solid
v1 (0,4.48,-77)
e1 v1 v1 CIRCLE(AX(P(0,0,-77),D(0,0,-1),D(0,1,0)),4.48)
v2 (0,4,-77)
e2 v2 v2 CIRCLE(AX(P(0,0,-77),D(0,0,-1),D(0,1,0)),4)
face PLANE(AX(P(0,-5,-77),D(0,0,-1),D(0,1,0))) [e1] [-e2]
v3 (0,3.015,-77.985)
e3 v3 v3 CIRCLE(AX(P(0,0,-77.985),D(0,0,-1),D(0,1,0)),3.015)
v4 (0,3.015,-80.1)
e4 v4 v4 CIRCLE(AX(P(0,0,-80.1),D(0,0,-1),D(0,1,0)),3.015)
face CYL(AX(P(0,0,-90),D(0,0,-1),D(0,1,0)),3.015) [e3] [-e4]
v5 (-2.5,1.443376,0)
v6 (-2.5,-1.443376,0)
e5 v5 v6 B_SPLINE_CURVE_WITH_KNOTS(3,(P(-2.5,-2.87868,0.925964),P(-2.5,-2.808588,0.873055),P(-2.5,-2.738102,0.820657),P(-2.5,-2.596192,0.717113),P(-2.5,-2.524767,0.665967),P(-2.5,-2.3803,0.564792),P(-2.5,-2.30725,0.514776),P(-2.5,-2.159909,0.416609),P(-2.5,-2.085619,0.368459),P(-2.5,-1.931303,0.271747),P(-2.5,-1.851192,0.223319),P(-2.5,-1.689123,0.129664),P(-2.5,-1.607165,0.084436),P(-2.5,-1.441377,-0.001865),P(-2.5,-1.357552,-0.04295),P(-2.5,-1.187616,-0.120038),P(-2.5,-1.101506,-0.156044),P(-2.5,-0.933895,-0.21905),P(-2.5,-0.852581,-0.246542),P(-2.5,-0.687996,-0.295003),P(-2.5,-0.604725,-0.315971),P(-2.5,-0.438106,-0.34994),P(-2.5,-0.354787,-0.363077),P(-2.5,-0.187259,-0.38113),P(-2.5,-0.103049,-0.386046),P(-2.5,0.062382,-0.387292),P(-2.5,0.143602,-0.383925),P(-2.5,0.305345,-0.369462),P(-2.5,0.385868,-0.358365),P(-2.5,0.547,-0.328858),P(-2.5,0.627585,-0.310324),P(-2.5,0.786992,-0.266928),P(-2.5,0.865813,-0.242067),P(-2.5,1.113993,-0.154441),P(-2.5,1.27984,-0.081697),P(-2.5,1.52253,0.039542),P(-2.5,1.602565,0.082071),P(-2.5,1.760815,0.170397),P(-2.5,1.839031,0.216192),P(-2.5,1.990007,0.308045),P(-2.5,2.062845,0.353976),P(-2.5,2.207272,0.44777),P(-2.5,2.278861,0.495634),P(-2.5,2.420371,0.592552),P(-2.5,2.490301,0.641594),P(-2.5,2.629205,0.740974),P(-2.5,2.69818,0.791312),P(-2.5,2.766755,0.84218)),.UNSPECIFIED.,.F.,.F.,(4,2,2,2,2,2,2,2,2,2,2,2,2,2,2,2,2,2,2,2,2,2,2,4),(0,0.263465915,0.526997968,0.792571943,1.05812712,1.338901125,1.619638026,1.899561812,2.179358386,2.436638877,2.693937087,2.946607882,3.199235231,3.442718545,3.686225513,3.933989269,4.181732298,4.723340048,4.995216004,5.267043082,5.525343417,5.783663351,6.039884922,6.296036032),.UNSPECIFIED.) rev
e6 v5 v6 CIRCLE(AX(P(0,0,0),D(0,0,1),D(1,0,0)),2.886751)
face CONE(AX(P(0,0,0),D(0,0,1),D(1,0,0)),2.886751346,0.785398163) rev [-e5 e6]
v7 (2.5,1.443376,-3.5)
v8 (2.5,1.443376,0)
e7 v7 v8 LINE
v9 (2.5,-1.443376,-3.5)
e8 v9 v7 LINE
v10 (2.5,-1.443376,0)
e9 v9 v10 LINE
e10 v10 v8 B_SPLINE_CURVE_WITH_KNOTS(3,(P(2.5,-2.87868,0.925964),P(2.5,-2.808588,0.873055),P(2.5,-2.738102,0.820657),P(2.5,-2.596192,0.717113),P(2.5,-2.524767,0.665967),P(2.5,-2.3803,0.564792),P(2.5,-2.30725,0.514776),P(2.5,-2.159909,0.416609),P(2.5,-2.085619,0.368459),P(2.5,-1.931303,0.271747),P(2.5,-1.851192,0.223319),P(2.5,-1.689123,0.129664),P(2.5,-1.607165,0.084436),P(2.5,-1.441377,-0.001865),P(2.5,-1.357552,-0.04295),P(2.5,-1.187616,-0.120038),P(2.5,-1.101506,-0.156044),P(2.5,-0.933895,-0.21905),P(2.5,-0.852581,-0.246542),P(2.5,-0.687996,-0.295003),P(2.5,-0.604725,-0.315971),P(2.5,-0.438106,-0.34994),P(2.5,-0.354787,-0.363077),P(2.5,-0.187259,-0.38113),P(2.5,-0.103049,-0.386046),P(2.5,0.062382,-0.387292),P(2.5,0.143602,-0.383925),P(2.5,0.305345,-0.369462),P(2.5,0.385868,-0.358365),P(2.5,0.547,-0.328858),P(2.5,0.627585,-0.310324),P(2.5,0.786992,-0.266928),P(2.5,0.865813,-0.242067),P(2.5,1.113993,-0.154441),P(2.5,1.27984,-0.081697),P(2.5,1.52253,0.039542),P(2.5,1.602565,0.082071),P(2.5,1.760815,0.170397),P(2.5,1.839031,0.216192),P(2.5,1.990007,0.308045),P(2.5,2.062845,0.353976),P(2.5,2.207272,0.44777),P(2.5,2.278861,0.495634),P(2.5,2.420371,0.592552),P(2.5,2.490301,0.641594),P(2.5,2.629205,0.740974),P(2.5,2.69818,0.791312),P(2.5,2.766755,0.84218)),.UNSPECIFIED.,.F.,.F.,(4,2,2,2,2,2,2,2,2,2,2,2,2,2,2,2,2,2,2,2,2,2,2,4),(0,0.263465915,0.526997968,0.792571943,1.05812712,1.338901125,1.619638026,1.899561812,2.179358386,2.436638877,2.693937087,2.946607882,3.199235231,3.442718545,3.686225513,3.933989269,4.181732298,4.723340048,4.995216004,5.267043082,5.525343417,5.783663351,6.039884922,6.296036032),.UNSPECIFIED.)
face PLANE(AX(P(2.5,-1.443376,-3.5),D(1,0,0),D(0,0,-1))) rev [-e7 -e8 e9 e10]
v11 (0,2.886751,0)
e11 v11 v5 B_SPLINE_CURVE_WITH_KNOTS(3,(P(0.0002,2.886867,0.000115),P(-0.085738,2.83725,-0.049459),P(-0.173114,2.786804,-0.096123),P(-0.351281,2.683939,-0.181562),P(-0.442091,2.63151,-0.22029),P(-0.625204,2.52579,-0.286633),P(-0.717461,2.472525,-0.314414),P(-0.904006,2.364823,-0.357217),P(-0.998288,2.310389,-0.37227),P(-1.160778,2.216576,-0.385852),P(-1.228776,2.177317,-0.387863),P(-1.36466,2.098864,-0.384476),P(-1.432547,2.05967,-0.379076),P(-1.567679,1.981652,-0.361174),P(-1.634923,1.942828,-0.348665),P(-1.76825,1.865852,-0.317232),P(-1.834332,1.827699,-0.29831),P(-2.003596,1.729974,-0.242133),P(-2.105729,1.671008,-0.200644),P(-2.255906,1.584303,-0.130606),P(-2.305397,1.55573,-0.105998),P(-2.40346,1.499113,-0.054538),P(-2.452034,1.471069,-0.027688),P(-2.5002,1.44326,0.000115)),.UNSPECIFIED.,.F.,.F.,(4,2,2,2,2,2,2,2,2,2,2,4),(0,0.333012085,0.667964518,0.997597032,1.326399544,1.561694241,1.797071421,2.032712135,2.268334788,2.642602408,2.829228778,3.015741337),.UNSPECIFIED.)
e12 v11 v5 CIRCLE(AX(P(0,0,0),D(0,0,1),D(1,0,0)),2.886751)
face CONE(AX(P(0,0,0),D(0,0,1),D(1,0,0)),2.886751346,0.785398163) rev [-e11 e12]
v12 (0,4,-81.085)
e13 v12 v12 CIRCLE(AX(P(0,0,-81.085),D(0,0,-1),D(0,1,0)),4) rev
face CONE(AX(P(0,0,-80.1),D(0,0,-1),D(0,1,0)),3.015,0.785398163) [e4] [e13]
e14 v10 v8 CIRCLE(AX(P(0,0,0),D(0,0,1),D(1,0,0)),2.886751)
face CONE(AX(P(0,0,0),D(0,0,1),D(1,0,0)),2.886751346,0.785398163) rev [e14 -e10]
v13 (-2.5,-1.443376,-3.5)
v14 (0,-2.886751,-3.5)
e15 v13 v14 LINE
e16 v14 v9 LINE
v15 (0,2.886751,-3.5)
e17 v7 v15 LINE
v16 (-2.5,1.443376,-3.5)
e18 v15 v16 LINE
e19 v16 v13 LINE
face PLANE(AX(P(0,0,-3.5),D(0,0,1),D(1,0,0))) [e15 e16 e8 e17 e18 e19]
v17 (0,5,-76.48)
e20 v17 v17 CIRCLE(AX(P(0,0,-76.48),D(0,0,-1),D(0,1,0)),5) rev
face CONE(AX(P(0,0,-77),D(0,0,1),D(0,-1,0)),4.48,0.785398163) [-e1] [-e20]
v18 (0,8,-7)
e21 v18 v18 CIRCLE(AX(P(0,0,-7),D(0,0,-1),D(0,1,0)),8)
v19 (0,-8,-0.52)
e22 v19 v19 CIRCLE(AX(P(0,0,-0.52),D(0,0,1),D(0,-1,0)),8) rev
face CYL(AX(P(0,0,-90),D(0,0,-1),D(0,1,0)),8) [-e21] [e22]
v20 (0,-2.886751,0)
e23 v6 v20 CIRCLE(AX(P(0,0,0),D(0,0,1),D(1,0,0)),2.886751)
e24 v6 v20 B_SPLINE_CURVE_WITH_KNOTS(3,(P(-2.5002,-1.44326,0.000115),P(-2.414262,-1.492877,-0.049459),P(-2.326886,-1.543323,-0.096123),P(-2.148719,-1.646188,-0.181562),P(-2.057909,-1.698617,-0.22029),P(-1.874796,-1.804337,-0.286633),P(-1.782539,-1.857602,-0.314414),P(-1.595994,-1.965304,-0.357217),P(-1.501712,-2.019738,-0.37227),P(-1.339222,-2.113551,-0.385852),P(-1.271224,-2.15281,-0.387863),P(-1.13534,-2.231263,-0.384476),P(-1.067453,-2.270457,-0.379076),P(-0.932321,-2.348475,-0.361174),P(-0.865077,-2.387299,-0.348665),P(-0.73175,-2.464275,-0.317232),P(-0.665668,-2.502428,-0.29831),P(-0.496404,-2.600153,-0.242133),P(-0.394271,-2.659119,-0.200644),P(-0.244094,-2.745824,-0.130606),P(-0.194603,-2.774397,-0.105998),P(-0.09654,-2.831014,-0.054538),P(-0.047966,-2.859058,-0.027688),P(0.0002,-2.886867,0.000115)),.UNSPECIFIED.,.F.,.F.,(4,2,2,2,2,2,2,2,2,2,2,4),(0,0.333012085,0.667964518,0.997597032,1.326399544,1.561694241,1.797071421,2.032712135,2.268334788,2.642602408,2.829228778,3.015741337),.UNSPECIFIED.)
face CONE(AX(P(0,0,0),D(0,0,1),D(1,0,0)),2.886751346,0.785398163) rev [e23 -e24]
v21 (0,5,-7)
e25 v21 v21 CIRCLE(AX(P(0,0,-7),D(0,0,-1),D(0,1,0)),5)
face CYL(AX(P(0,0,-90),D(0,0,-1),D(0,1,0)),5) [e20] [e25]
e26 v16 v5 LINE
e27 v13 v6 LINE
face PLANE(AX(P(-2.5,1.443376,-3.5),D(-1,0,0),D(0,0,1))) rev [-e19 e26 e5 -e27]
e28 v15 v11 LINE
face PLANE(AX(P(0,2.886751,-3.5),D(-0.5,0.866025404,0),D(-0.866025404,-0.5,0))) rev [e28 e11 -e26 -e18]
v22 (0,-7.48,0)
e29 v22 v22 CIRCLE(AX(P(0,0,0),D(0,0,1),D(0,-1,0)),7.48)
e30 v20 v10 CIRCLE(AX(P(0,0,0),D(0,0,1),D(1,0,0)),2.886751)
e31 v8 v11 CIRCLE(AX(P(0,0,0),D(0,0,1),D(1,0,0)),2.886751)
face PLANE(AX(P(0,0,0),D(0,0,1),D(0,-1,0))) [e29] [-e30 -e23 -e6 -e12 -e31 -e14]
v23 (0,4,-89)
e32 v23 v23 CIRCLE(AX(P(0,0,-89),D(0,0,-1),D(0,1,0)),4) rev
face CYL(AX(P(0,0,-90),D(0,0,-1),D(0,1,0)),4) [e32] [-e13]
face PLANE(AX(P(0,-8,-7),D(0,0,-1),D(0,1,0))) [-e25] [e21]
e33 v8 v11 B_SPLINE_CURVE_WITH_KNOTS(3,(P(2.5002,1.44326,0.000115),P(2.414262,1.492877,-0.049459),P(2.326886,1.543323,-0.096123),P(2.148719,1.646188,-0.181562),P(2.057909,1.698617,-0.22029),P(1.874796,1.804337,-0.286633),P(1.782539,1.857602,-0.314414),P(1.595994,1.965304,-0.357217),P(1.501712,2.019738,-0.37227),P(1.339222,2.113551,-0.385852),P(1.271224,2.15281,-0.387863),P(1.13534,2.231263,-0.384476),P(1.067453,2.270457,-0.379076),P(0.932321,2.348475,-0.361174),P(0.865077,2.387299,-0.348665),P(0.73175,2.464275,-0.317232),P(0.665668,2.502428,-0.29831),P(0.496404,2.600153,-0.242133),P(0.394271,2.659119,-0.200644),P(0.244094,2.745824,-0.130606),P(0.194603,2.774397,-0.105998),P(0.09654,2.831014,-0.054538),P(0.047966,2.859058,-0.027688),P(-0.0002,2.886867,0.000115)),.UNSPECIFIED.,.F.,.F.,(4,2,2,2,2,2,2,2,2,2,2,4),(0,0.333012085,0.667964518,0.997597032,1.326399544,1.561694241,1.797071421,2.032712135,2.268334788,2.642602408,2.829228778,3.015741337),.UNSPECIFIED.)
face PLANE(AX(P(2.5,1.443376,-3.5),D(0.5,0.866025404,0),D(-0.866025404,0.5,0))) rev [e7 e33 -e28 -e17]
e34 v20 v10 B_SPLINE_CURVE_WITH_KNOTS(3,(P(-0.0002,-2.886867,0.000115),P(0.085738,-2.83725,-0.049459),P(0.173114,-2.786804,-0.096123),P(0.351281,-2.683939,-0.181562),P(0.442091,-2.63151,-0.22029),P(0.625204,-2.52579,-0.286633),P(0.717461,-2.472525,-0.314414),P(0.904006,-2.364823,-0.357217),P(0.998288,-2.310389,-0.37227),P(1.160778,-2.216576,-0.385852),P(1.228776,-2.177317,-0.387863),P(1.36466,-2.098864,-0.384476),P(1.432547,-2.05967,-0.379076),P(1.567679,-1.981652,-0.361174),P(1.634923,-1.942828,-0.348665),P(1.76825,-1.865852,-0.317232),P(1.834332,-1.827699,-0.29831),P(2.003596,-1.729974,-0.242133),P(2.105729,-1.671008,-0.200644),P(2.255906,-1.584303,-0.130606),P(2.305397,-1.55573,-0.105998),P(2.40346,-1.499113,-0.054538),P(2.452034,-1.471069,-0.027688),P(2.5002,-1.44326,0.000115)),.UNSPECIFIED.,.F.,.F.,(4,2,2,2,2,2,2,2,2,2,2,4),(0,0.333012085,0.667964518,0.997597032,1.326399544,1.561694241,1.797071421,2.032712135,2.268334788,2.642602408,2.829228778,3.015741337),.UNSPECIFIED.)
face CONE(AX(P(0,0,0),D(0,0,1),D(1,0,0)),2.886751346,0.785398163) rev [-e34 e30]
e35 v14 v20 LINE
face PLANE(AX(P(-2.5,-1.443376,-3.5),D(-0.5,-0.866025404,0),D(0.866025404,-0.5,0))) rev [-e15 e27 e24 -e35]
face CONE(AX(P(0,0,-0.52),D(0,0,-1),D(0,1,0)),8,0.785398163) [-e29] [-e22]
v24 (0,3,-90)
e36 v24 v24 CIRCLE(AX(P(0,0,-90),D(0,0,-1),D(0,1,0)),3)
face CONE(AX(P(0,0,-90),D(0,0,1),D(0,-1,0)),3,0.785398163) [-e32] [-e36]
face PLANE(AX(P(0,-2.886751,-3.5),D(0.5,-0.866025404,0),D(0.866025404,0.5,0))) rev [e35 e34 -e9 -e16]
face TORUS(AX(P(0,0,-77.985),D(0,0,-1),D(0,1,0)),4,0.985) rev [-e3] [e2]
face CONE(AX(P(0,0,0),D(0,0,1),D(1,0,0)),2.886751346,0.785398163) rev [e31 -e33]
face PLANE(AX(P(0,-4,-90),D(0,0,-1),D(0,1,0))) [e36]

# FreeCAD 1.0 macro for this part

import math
import FreeCAD as App
import Part
import Sketcher
from FreeCAD import Vector
Q = App.Units.Quantity


def edges_at(feature, points):
    """Names of the edges that pass closest to the given points."""
    edges = feature.Shape.Edges
    near = lambda p: min(range(len(edges)), key=lambda i: edges[i].distToShape(Part.Vertex(*p))[0])
    return sorted({f"Edge{near(p) + 1}" for p in points})


def add_polygon(sketch, points):
    """Adds a closed chain of lines whose ends are joined by coincident constraints."""
    first, n = sketch.GeometryCount, len(points)
    for a, b in zip(points, points[1:] + points[:1]):
        sketch.addGeometry(Part.LineSegment(App.Vector(*a, 0), App.Vector(*b, 0)), False)
    for i in range(n):
        sketch.addConstraint(Sketcher.Constraint("Coincident", first + i, 2, first + (i + 1) % n, 1))

doc = App.newDocument("Part")
params = doc.addObject("Spreadsheet::Sheet", "Params")
for row, (alias, value) in enumerate([
    ("sketch1_width", "8 mm"),
    ("sketch1_width2", "4 mm"),
    ("sketch1_width3", "1 mm"),
    ("sketch1_height", "7 mm"),
    ("sketch1_height2", "90 mm"),
    ("revolution_angle", "360 deg"),
    ("sketch2_width", "1 mm"),
    ("groove_angle", "360 deg"),
    ("chamfer_size", "1 mm"),
    ("chamfer2_size", "0.52 mm"),
    ("pocket1_length", "3.5 mm"),
    ("groove2_angle", "360 deg"),
], start=1):
    params.set(f"A{row}", alias)
    params.set(f"B{row}", "=" + value)
    params.setAlias(f"B{row}", alias)

body = doc.addObject("PartDesign::Body", "Body")

# Sketch on YZ plane
sketch1 = body.newObject("Sketcher::SketchObject", "Sketch")
sketch1.AttachmentSupport = (doc.getObject("YZ_Plane"), [""])
sketch1.MapMode = "FlatFace"
add_polygon(sketch1, [(8, -7), (8, 0), (0, 0), (0, -90), (4, -90), (4, -77), (5, -77), (5, -7)])  # lines 0-7
sketch1.addConstraint(Sketcher.Constraint("Vertical", 0))
sketch1.addConstraint(Sketcher.Constraint("Horizontal", 1))
sketch1.addConstraint(Sketcher.Constraint("Vertical", 2))
sketch1.addConstraint(Sketcher.Constraint("Horizontal", 3))
sketch1.addConstraint(Sketcher.Constraint("Vertical", 4))
sketch1.addConstraint(Sketcher.Constraint("Horizontal", 5))
sketch1.addConstraint(Sketcher.Constraint("Vertical", 6))
sketch1.addConstraint(Sketcher.Constraint("Horizontal", 7))
sketch1.addConstraint(Sketcher.Constraint("Coincident", 1, 2, -1, 1))
sketch1.addConstraint(Sketcher.Constraint("DistanceX", 1, 2, 1, 1, 8.0))
sketch1.addConstraint(Sketcher.Constraint("DistanceX", 3, 1, 3, 2, 4.0))
sketch1.addConstraint(Sketcher.Constraint("DistanceX", 5, 1, 5, 2, 1.0))
sketch1.addConstraint(Sketcher.Constraint("DistanceY", 0, 1, 0, 2, 7.0))
sketch1.addConstraint(Sketcher.Constraint("DistanceY", 2, 2, 2, 1, 90.0))
sketch1.addConstraint(Sketcher.Constraint("DistanceY", 4, 1, 4, 2, 13.0))
sketch1.setExpression("Constraints[17]", "Params.sketch1_width")
sketch1.setExpression("Constraints[18]", "Params.sketch1_width2")
sketch1.setExpression("Constraints[19]", "Params.sketch1_width3")
sketch1.setExpression("Constraints[20]", "Params.sketch1_height")
sketch1.setExpression("Constraints[21]", "Params.sketch1_height2")
revolution = body.newObject("PartDesign::Revolution", "Revolution")
revolution.Profile = sketch1
revolution.ReferenceAxis = (sketch1, ["V_Axis"])
revolution.setExpression("Angle", "Params.revolution_angle")

# Sketch on YZ plane
sketch2 = body.newObject("Sketcher::SketchObject", "Sketch001")
sketch2.AttachmentSupport = (doc.getObject("YZ_Plane"), [""])
sketch2.MapMode = "FlatFace"
sketch2.addGeometry(Part.LineSegment(Vector(5, -82.085, 0), Vector(5, -77, 0)), False)
sketch2.addGeometry(Part.LineSegment(Vector(5, -77, 0), Vector(4, -77, 0)), False)
sketch2.addGeometry(Part.ArcOfCircle(Part.Circle(Vector(4, -77.985, 0), Vector(0, 0, 1), 0.985), math.radians(90), math.radians(180)), False)
sketch2.addGeometry(Part.LineSegment(Vector(3.015, -77.985, 0), Vector(3.015, -80.1, 0)), False)
sketch2.addGeometry(Part.LineSegment(Vector(3.015, -80.1, 0), Vector(5, -82.085, 0)), False)
sketch2.addConstraint(Sketcher.Constraint("Coincident", 0, 2, 1, 1))
sketch2.addConstraint(Sketcher.Constraint("Tangent", 1, 2, 2, 1))
sketch2.addConstraint(Sketcher.Constraint("Tangent", 2, 2, 3, 1))
sketch2.addConstraint(Sketcher.Constraint("Coincident", 3, 2, 4, 1))
sketch2.addConstraint(Sketcher.Constraint("Coincident", 4, 2, 0, 1))
sketch2.addConstraint(Sketcher.Constraint("Vertical", 0))
sketch2.addConstraint(Sketcher.Constraint("Horizontal", 1))
sketch2.addConstraint(Sketcher.Constraint("Vertical", 3))
sketch2.addConstraint(Sketcher.Constraint("DistanceX", 1, 2, 1, 1, 1.0))
sketch2.addConstraint(Sketcher.Constraint("Angle", 4, Q("-45 deg")))
sketch2.addConstraint(Sketcher.Constraint("DistanceX", -1, 1, 2, 3, 4.0))
sketch2.addConstraint(Sketcher.Constraint("DistanceY", 0, 2, -1, 1, 77.0))
sketch2.addConstraint(Sketcher.Constraint("Radius", 2, 0.985))
sketch2.addConstraint(Sketcher.Constraint("DistanceY", 3, 2, -1, 1, 80.1))
sketch2.setExpression("Constraints[8]", "Params.sketch2_width")
groove = body.newObject("PartDesign::Groove", "Groove")
groove.Profile = sketch2
groove.ReferenceAxis = (sketch2, ["V_Axis"])
groove.setExpression("Angle", "Params.groove_angle")
doc.recompute()

chamfer = body.newObject("PartDesign::Chamfer", "Chamfer")
chamfer.Base = (groove, edges_at(groove, [(0, -4, -90)]))
chamfer.setExpression("Size", "Params.chamfer_size")
doc.recompute()

chamfer2 = body.newObject("PartDesign::Chamfer", "Chamfer001")
chamfer2.Base = (chamfer, edges_at(chamfer, [(0, -5, -77), (0, -8, 0)]))
chamfer2.setExpression("Size", "Params.chamfer2_size")

# Sketch on XY plane
sketch3 = body.newObject("Sketcher::SketchObject", "Sketch002")
sketch3.AttachmentSupport = (doc.getObject("XY_Plane"), [""])
sketch3.MapMode = "FlatFace"
add_polygon(sketch3, [(2.5, 1.443376), (0, 2.886751), (-2.5, 1.443376), (-2.5, -1.443376), (0, -2.886751), (2.5, -1.443376)])  # lines 0-5
sketch3.addConstraint(Sketcher.Constraint("Vertical", 2))
sketch3.addConstraint(Sketcher.Constraint("Vertical", 5))
sketch3.addConstraint(Sketcher.Constraint("Symmetric", 0, 2, 3, 2, -1, 1))
sketch3.addConstraint(Sketcher.Constraint("Symmetric", 1, 2, 4, 2, -1, 1))
sketch3.addConstraint(Sketcher.Constraint("PointOnObject", 0, 2, -2))
sketch3.addConstraint(Sketcher.Constraint("Parallel", 0, 3))
sketch3.addConstraint(Sketcher.Constraint("Horizontal", 2, 2, 4, 2))
sketch3.addConstraint(Sketcher.Constraint("Angle", 0, Q("150 deg")))
sketch3.addConstraint(Sketcher.Constraint("DistanceX", 2, 2, 4, 2, 5.0))
sketch3.addConstraint(Sketcher.Constraint("DistanceY", 2, 2, 2, 1, 2.886751))
pocket1 = body.newObject("PartDesign::Pocket", "Pocket")
pocket1.Profile = sketch3
pocket1.setExpression("Length", "Params.pocket1_length")

# Sketch on YZ plane
sketch4 = body.newObject("Sketcher::SketchObject", "Sketch003")
sketch4.AttachmentSupport = (doc.getObject("YZ_Plane"), [""])
sketch4.MapMode = "FlatFace"
add_polygon(sketch4, [(0, 0), (-2.886751, 0), (0, -2.886751)])  # lines 0-2
sketch4.addConstraint(Sketcher.Constraint("Horizontal", 0))
sketch4.addConstraint(Sketcher.Constraint("Vertical", 2))
sketch4.addConstraint(Sketcher.Constraint("Coincident", 2, 2, -1, 1))
sketch4.addConstraint(Sketcher.Constraint("Equal", 0, 2))
sketch4.addConstraint(Sketcher.Constraint("DistanceX", 0, 2, 0, 1, 2.886751))
groove2 = body.newObject("PartDesign::Groove", "Groove001")
groove2.Profile = sketch4
groove2.ReferenceAxis = (sketch4, ["V_Axis"])
groove2.setExpression("Angle", "Params.groove2_angle")

doc.recompute()
